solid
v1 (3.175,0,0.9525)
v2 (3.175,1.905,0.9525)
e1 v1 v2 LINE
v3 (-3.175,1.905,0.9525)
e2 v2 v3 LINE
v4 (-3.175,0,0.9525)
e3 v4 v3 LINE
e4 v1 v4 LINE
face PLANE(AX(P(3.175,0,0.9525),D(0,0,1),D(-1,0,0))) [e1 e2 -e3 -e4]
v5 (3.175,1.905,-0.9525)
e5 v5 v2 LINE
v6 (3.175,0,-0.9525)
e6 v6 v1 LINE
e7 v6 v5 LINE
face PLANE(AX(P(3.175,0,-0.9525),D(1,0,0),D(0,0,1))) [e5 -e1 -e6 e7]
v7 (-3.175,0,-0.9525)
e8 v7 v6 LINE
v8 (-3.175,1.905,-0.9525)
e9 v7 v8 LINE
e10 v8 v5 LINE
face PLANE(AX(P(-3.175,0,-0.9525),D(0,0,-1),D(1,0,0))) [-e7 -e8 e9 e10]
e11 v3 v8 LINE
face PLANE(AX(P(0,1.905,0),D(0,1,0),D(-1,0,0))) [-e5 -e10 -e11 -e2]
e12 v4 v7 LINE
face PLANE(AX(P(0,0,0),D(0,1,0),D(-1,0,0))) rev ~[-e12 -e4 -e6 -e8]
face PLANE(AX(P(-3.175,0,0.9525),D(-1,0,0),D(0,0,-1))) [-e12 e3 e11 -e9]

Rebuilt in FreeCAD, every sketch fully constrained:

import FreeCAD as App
import Part
import Sketcher
Q = App.Units.Quantity

doc = App.newDocument("Part")
body = doc.addObject("PartDesign::Body", "Body")

# Sketch on XZ plane
sketch1 = doc.addObject("Sketcher::SketchObject", "Sketch")
body.addObject(sketch1)
sketch1.AttachmentSupport = (doc.XZ_Plane, [""])
sketch1.MapMode = "FlatFace"
sketch1.addGeometry([
    Part.LineSegment(App.Vector(-3.2, 1, 0), App.Vector(3.2, 1, 0)),
    Part.LineSegment(App.Vector(3.2, 1, 0), App.Vector(3.2, -1, 0)),
    Part.LineSegment(App.Vector(3.2, -1, 0), App.Vector(-3.2, -1, 0)),
    Part.LineSegment(App.Vector(-3.2, -1, 0), App.Vector(-3.2, 1, 0)),
], False)
sketch1.addConstraint([
    Sketcher.Constraint("Coincident", 0, 2, 1, 1),
    Sketcher.Constraint("Coincident", 1, 2, 2, 1),
    Sketcher.Constraint("Coincident", 2, 2, 3, 1),
    Sketcher.Constraint("Coincident", 3, 2, 0, 1),
    Sketcher.Constraint("Horizontal", 0),
    Sketcher.Constraint("Vertical", 1),
    Sketcher.Constraint("Horizontal", 2),
    Sketcher.Constraint("Vertical", 3),
    Sketcher.Constraint("Symmetric", 0, 2, 2, 2, -1, 1),
    Sketcher.Constraint("DistanceX", 0, 1, 0, 2, Q("0.25 in")),
    Sketcher.Constraint("DistanceY", 1, 2, 1, 1, Q("0.075 in")),
])
pad1 = doc.addObject("PartDesign::Pad", "Pad")
body.addObject(pad1)
pad1.Profile = sketch1
pad1.Length = Q("0.075 in")
pad1.Reversed = True

doc.recompute()
